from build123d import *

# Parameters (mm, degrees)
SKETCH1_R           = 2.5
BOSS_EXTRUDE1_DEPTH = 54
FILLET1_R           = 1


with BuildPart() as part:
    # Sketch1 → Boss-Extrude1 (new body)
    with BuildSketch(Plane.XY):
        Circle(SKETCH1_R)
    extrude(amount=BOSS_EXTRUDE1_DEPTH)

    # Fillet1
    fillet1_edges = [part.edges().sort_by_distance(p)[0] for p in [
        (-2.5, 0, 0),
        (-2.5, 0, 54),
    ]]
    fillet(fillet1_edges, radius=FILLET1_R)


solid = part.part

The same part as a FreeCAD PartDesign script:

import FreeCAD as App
import Part
import Sketcher
from FreeCAD import Vector
Q = App.Units.Quantity


def edges_at(feature, points):
    """Names of the edges that pass closest to the given points."""
    edges = feature.Shape.Edges
    near = lambda p: min(range(len(edges)), key=lambda i: edges[i].distToShape(Part.Vertex(*p))[0])
    return sorted({f"Edge{near(p) + 1}" for p in points})

doc = App.newDocument("Part")
params = doc.addObject("Spreadsheet::Sheet", "Params")
for row, (alias, value) in enumerate([
    ("sketch1_diameter", "5 mm"),
    ("pad1_length", "54 mm"),
    ("fillet_radius", "1 mm"),
], start=1):
    params.set(f"A{row}", alias)
    params.set(f"B{row}", "=" + value)
    params.setAlias(f"B{row}", alias)

body = doc.addObject("PartDesign::Body", "Body")

sketch1 = doc.addObject("Sketcher::SketchObject", "Sketch")
body.addObject(sketch1)
sketch1.AttachmentSupport = (doc.XY_Plane, [""])
sketch1.MapMode = "FlatFace"
sketch1.addGeometry(Part.Circle(Vector(0, 0, 0), Vector(0, 0, 1), 2.5), False)
sketch1.addConstraint([
    Sketcher.Constraint("Coincident", 0, 3, -1, 1),
    Sketcher.Constraint("Diameter", 0, Q("5 mm")),
])
sketch1.setExpression("Constraints[1]", "Params.sketch1_diameter")
pad1 = doc.addObject("PartDesign::Pad", "Pad")
body.addObject(pad1)
pad1.Profile = sketch1
pad1.setExpression("Length", "Params.pad1_length")
doc.recompute()

fillet = doc.addObject("PartDesign::Fillet", "Fillet")
body.addObject(fillet)
fillet.Base = (pad1, edges_at(pad1, [(-2.5, 0, 0), (-2.5, 0, 54)]))
fillet.setExpression("Radius", "Params.fillet_radius")

doc.recompute()
